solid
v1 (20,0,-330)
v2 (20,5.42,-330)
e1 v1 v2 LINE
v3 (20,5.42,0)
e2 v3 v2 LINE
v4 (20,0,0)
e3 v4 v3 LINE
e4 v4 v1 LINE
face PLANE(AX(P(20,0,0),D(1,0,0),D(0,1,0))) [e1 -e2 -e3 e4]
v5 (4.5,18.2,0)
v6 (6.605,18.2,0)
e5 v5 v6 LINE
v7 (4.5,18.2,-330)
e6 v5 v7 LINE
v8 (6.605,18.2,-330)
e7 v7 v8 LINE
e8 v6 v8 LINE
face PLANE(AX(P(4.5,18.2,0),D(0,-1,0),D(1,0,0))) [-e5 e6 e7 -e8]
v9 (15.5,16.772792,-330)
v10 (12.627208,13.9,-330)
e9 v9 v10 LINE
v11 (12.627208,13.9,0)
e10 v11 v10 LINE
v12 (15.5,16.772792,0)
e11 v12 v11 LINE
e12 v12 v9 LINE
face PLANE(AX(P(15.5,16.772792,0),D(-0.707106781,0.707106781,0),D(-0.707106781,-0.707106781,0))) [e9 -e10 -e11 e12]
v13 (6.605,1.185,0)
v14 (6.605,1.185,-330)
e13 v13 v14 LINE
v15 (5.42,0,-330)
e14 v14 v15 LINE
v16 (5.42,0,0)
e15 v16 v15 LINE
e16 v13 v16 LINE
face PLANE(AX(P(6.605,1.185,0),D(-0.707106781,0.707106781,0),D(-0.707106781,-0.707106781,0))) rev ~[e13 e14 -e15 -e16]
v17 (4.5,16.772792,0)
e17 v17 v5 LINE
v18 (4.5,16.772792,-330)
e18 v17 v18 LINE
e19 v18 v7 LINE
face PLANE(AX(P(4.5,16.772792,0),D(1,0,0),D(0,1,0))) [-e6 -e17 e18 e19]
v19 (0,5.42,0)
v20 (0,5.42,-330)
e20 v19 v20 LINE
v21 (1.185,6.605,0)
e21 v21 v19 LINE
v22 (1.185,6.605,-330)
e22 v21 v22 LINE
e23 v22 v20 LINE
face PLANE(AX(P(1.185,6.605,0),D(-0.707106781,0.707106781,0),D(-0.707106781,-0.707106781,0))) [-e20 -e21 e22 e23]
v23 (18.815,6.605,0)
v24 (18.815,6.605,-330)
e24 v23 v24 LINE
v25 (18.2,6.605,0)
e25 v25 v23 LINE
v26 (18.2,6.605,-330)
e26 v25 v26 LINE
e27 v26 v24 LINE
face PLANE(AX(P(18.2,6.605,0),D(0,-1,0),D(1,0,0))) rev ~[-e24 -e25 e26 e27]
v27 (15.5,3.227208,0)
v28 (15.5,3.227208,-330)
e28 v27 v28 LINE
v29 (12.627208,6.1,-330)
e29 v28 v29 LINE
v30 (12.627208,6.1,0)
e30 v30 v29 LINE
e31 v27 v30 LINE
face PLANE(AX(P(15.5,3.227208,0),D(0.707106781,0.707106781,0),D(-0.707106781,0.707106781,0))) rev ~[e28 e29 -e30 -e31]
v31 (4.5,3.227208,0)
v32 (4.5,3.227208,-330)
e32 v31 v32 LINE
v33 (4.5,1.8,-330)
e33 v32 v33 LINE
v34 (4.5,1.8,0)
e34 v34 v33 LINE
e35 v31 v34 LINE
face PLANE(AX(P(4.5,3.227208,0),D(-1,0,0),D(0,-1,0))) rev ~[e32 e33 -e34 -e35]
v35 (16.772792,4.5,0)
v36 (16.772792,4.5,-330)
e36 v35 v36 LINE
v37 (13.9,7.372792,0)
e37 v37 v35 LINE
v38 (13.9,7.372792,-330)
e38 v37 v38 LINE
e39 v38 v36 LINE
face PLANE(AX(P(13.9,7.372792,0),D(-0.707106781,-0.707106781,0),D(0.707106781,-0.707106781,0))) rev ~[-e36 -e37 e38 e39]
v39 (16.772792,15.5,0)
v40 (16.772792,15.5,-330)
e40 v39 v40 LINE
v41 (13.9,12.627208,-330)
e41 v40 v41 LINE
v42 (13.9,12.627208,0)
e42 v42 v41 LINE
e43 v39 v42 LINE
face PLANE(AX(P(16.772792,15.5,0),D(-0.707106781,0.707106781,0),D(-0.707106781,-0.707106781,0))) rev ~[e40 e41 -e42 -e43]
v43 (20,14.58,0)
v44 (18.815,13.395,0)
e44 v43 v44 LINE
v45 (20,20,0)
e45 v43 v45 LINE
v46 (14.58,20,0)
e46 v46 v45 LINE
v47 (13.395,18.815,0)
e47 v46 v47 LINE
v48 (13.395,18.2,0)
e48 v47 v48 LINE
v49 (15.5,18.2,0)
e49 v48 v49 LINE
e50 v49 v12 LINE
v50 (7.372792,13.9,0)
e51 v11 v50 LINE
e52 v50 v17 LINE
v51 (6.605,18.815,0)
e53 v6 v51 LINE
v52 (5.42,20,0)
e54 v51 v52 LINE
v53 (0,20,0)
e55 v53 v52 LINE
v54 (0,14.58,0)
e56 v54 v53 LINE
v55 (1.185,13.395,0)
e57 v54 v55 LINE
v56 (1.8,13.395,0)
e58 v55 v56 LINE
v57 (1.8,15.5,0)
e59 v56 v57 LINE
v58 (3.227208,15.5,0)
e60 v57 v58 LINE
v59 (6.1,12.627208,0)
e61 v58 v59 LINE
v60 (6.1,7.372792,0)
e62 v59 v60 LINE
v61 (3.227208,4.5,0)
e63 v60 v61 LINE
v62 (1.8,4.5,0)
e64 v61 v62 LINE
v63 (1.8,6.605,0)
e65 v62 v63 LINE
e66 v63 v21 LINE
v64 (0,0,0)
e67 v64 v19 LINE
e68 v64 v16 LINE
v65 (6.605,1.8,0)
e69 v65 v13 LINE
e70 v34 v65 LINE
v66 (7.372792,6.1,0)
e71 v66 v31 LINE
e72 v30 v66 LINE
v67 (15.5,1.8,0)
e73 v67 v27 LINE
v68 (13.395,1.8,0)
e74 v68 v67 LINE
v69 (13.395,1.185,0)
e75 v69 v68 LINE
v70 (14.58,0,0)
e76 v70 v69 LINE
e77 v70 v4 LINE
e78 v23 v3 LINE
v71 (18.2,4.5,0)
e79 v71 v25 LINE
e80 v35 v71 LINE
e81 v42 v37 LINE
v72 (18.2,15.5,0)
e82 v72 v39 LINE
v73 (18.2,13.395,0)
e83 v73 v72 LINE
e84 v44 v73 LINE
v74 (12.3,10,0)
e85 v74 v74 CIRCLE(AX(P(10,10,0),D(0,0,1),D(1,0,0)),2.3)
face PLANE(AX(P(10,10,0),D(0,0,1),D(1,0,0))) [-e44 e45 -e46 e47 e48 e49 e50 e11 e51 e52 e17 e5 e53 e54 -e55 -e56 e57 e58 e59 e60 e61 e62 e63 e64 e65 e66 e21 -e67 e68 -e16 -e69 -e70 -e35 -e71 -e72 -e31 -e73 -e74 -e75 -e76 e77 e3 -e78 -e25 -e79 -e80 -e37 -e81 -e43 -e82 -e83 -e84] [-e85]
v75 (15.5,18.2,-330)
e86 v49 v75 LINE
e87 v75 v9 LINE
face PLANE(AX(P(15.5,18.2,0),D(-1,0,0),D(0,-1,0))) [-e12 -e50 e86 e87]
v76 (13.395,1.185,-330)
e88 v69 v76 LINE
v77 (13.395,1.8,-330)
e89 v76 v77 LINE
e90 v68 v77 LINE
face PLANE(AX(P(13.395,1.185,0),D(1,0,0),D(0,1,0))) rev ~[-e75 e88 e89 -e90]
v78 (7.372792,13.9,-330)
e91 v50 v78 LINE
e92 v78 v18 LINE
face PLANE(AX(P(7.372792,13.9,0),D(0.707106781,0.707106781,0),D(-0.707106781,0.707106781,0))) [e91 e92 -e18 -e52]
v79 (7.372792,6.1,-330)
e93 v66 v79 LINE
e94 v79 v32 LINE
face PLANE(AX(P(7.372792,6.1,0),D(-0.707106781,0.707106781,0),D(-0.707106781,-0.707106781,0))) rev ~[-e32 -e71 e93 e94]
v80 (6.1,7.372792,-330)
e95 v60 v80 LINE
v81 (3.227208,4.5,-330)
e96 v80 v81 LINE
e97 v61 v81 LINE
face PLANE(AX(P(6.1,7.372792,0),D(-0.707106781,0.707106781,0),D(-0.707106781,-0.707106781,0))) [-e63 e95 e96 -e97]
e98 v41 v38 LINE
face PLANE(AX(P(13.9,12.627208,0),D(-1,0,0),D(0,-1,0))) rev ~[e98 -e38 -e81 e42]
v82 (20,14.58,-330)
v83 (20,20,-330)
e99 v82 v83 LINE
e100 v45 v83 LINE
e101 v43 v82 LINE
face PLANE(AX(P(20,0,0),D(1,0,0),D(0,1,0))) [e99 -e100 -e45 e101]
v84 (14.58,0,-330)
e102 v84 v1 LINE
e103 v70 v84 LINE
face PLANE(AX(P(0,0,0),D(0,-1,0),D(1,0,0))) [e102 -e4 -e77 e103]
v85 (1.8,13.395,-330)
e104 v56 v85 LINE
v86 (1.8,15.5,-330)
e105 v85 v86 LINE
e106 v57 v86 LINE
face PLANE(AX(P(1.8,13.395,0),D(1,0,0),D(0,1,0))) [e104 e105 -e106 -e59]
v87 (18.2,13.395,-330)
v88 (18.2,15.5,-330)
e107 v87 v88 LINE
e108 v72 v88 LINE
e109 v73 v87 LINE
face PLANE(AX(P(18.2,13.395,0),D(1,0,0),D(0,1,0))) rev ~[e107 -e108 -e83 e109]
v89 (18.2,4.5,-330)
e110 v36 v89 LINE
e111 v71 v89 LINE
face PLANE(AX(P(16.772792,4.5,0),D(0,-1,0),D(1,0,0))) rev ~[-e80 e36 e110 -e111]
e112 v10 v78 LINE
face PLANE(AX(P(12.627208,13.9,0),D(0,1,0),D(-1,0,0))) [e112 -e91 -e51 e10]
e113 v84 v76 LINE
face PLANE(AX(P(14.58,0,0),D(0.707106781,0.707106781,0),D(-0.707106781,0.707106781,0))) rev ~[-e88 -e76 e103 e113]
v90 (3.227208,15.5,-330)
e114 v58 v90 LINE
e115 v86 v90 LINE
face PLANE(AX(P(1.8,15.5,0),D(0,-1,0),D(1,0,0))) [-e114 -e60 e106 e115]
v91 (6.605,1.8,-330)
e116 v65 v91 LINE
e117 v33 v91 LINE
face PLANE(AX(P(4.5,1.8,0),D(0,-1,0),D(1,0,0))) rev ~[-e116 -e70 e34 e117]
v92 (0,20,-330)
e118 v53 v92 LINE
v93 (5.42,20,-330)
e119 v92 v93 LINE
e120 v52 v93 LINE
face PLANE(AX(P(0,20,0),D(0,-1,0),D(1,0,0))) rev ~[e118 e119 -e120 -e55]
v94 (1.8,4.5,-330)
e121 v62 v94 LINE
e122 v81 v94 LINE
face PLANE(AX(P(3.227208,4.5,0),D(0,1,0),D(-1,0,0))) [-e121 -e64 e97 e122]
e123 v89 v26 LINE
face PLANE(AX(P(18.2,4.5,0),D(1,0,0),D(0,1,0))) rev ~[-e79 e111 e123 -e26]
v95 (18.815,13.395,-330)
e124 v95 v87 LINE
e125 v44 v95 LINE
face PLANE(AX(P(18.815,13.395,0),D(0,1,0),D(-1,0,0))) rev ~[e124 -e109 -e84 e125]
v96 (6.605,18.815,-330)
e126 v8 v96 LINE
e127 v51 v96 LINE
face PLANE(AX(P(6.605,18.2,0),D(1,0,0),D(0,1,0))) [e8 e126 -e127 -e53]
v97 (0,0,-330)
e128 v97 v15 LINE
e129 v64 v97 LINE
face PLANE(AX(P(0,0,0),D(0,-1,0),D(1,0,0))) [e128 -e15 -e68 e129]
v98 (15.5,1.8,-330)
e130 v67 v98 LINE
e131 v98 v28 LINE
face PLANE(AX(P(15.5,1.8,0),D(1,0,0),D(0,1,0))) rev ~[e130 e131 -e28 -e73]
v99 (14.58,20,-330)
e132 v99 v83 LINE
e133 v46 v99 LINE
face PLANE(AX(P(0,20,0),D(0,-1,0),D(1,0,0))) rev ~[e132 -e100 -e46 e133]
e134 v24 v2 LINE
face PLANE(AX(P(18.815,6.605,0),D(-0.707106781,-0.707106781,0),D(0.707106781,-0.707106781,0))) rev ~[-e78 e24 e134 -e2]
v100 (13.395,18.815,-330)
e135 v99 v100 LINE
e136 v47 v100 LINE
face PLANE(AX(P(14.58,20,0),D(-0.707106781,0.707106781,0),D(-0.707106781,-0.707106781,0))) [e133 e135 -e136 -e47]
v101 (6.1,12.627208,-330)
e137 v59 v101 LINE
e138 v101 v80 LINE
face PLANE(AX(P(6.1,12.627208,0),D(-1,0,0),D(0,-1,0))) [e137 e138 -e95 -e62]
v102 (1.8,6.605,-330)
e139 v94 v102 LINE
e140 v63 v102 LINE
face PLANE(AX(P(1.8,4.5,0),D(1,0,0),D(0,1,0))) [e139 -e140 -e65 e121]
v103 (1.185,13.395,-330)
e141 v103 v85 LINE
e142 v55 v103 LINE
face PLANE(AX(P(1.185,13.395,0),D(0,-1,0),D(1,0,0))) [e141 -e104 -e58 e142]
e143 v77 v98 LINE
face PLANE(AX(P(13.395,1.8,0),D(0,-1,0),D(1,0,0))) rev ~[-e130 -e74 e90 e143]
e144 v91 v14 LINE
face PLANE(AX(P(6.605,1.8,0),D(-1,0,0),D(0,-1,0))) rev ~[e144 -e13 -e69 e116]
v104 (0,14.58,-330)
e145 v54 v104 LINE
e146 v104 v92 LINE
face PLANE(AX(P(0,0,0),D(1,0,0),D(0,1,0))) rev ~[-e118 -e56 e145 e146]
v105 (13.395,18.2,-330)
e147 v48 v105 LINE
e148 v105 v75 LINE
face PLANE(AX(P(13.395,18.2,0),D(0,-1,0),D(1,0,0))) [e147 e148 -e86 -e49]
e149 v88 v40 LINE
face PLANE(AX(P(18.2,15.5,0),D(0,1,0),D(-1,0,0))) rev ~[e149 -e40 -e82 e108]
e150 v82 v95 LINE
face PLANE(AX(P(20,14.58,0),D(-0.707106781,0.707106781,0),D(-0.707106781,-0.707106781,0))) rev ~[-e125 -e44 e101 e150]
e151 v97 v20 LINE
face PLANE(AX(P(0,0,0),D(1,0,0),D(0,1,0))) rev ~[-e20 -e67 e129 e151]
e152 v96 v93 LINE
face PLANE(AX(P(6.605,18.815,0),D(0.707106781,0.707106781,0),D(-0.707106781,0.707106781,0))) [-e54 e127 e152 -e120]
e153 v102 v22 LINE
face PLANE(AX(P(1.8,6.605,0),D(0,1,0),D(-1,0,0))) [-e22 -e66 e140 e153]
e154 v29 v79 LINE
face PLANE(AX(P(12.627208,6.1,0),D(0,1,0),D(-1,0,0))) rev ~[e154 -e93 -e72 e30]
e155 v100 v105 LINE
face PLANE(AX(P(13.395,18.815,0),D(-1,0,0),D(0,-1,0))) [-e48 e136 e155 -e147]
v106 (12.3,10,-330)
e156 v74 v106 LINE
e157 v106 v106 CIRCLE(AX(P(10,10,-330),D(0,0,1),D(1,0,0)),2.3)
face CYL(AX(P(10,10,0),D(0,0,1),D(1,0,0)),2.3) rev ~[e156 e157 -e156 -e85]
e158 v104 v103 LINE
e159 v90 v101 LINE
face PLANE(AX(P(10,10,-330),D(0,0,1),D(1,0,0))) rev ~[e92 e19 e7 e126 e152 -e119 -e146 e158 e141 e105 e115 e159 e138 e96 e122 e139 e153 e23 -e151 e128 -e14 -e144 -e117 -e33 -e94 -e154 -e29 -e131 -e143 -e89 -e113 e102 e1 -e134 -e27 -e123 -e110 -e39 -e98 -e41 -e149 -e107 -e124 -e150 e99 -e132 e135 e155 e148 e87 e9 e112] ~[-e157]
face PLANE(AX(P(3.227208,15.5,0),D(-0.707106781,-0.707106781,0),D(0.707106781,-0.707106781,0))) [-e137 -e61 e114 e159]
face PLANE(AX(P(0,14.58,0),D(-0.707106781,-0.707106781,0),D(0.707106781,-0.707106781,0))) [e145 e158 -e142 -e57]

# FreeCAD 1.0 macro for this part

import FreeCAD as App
import Part
import Sketcher


def add_polygon(sketch, points):
    """Adds a closed chain of lines whose ends are joined by coincident constraints."""
    first, n = sketch.GeometryCount, len(points)
    for a, b in zip(points, points[1:] + points[:1]):
        sketch.addGeometry(Part.LineSegment(App.Vector(*a, 0), App.Vector(*b, 0)), False)
    for i in range(n):
        sketch.addConstraint(Sketcher.Constraint("Coincident", first + i, 2, first + (i + 1) % n, 1))

doc = App.newDocument("Part")
body = doc.addObject("PartDesign::Body", "Body")

# Sketch on XY plane
sketch1 = doc.addObject("Sketcher::SketchObject", "Sketch")
body.addObject(sketch1)
sketch1.AttachmentSupport = (doc.XY_Plane, [""])
sketch1.MapMode = "FlatFace"
add_polygon(sketch1, [(0, 20), (0, 0), (20, 0), (20, 20)])  # lines 0-3
sketch1.addConstraint([
    Sketcher.Constraint("Vertical", 0),
    Sketcher.Constraint("Horizontal", 1),
    Sketcher.Constraint("Vertical", 2),
    Sketcher.Constraint("Horizontal", 3),
    Sketcher.Constraint("Coincident", 0, 2, -1, 1),
    Sketcher.Constraint("Equal", 3, 0),
    Sketcher.Constraint("DistanceX", 1, 1, 1, 2, 20.0),
])
pad1 = doc.addObject("PartDesign::Pad", "Pad")
body.addObject(pad1)
pad1.Profile = sketch1
pad1.Length = 330
pad1.Reversed = True

# Sketch on XY plane
sketch2 = doc.addObject("Sketcher::SketchObject", "Sketch001")
body.addObject(sketch2)
sketch2.AttachmentSupport = (doc.XY_Plane, [""])
sketch2.MapMode = "FlatFace"
sketch2.addGeometry(Part.Circle(App.Vector(10, 10, 0), App.Vector(0, 0, 1), 2.3), False)  # 0
add_polygon(sketch2, [(14.58, 20), (5.42, 20), (6.605, 18.815), (6.605, 18.2), (4.5, 18.2), (4.5, 16.772792), (7.372792, 13.9), (12.627208, 13.9), (15.5, 16.772792), (15.5, 18.2), (13.395, 18.2), (13.395, 18.815)])  # lines 1-12
add_polygon(sketch2, [(6.605, 1.185), (5.42, 0), (14.58, 0), (13.395, 1.185), (13.395, 1.8), (15.5, 1.8), (15.5, 3.227208), (12.627208, 6.1), (7.372792, 6.1), (4.5, 3.227208), (4.5, 1.8), (6.605, 1.8)])  # lines 13-24
add_polygon(sketch2, [(1.185, 6.605), (1.8, 6.605), (1.8, 4.5), (3.227208, 4.5), (6.1, 7.372792), (6.1, 12.627208), (3.227208, 15.5), (1.8, 15.5), (1.8, 13.395), (1.185, 13.395), (0, 14.58), (0, 5.42)])  # lines 25-36
add_polygon(sketch2, [(18.815, 6.605), (20, 5.42), (20, 14.58), (18.815, 13.395), (18.2, 13.395), (18.2, 15.5), (16.772792, 15.5), (13.9, 12.627208), (13.9, 7.372792), (16.772792, 4.5), (18.2, 4.5), (18.2, 6.605)])  # lines 37-48
sketch2.addConstraint([
    Sketcher.Constraint("Horizontal", 1),
    Sketcher.Constraint("Vertical", 3),
    Sketcher.Constraint("Horizontal", 4),
    Sketcher.Constraint("Vertical", 5),
    Sketcher.Constraint("Horizontal", 7),
    Sketcher.Constraint("Vertical", 9),
    Sketcher.Constraint("Horizontal", 10),
    Sketcher.Constraint("Vertical", 11),
    Sketcher.Constraint("Horizontal", 14),
    Sketcher.Constraint("Vertical", 16),
    Sketcher.Constraint("Horizontal", 17),
    Sketcher.Constraint("Vertical", 18),
    Sketcher.Constraint("Horizontal", 20),
    Sketcher.Constraint("Vertical", 22),
    Sketcher.Constraint("Horizontal", 23),
    Sketcher.Constraint("Vertical", 24),
    Sketcher.Constraint("Horizontal", 25),
    Sketcher.Constraint("Vertical", 26),
    Sketcher.Constraint("Horizontal", 27),
    Sketcher.Constraint("Vertical", 29),
    Sketcher.Constraint("Horizontal", 31),
    Sketcher.Constraint("Vertical", 32),
    Sketcher.Constraint("Horizontal", 33),
    Sketcher.Constraint("Vertical", 35),
    Sketcher.Constraint("Vertical", 38),
    Sketcher.Constraint("Horizontal", 40),
    Sketcher.Constraint("Vertical", 41),
    Sketcher.Constraint("Horizontal", 42),
    Sketcher.Constraint("Vertical", 44),
    Sketcher.Constraint("Horizontal", 46),
    Sketcher.Constraint("Vertical", 47),
    Sketcher.Constraint("Horizontal", 48),
    Sketcher.Constraint("PointOnObject", 13, 2, -1),
    Sketcher.Constraint("PointOnObject", 34, 2, -2),
    Sketcher.Constraint("Parallel", 2, 6),
    Sketcher.Constraint("Perpendicular", 6, 8),
    Sketcher.Constraint("Parallel", 8, 12),
    Sketcher.Constraint("Parallel", 12, 13),
    Sketcher.Constraint("Perpendicular", 13, 15),
    Sketcher.Constraint("Parallel", 15, 19),
    Sketcher.Constraint("Perpendicular", 19, 21),
    Sketcher.Constraint("Parallel", 21, 28),
    Sketcher.Constraint("Perpendicular", 28, 30),
    Sketcher.Constraint("Parallel", 30, 34),
    Sketcher.Constraint("Perpendicular", 34, 36),
    Sketcher.Constraint("Perpendicular", 36, 37),
    Sketcher.Constraint("Perpendicular", 37, 39),
    Sketcher.Constraint("Parallel", 39, 43),
    Sketcher.Constraint("Perpendicular", 43, 45),
    Sketcher.Constraint("Horizontal", 5, 2, 8, 2),
    Sketcher.Constraint("Horizontal", 4, 2, 9, 2),
    Sketcher.Constraint("Horizontal", 2, 2, 11, 2),
    Sketcher.Constraint("Horizontal", 18, 2, 21, 2),
    Sketcher.Constraint("Horizontal", 17, 2, 22, 2),
    Sketcher.Constraint("Horizontal", 15, 2, 24, 2),
    Sketcher.Constraint("Horizontal", 35, 2, 37, 2),
    Sketcher.Constraint("Horizontal", 34, 2, 38, 2),
    Sketcher.Constraint("Horizontal", 33, 2, 39, 2),
    Sketcher.Constraint("Horizontal", 31, 2, 41, 2),
    Sketcher.Constraint("Horizontal", 29, 2, 43, 2),
    Sketcher.Constraint("Horizontal", 28, 2, 44, 2),
    Sketcher.Constraint("Horizontal", 27, 2, 45, 2),
    Sketcher.Constraint("Horizontal", 36, 2, 47, 2),
    Sketcher.Constraint("Vertical", 1, 2, 13, 2),
    Sketcher.Constraint("Vertical", 12, 2, 14, 2),
    Sketcher.Constraint("Vertical", 11, 2, 15, 2),
    Sketcher.Constraint("Vertical", 9, 2, 17, 2),
    Sketcher.Constraint("Vertical", 7, 2, 19, 2),
    Sketcher.Constraint("Vertical", 6, 2, 20, 2),
    Sketcher.Constraint("Vertical", 5, 2, 21, 2),
    Sketcher.Constraint("Vertical", 27, 2, 30, 2),
    Sketcher.Constraint("Vertical", 26, 2, 31, 2),
    Sketcher.Constraint("Vertical", 33, 2, 36, 2),
    Sketcher.Constraint("Vertical", 41, 2, 46, 2),
    Sketcher.Constraint("Equal", 4, 10),
    Sketcher.Constraint("Equal", 33, 40),
    Sketcher.Constraint("Equal", 31, 42),
    Sketcher.Constraint("Equal", 48, 3),
    Sketcher.Constraint("Equal", 46, 5),
    Sketcher.Constraint("Equal", 11, 16),
    Sketcher.Constraint("Equal", 9, 18),
    Sketcher.Constraint("Equal", 23, 26),
    Sketcher.Constraint("Equal", 20, 29),
    Sketcher.Constraint("Equal", 26, 32),
    Sketcher.Constraint("Equal", 14, 35),
    Sketcher.Constraint("Equal", 21, 28),
    Sketcher.Constraint("Diameter", 0, 4.6),
    Sketcher.Constraint("DistanceX", -1, 1, 0, 3, 10.0),
    Sketcher.Constraint("DistanceY", -1, 1, 0, 3, 10.0),
    Sketcher.Constraint("DistanceY", -1, 1, 1, 2, 20.0),
    Sketcher.Constraint("DistanceX", -1, 1, 37, 2, 20.0),
    Sketcher.Constraint("DistanceX", 1, 2, 1, 1, 9.16),
    Sketcher.Constraint("DistanceY", -1, 1, 3, 2, 18.2),
    Sketcher.Constraint("DistanceX", -1, 1, 4, 2, 4.5),
    Sketcher.Constraint("DistanceY", -1, 1, 6, 2, 13.9),
    Sketcher.Constraint("DistanceX", -1, 1, 8, 2, 15.5),
    Sketcher.Constraint("DistanceY", -1, 1, 26, 2, 4.5),
    Sketcher.Constraint("DistanceX", 4, 2, 4, 1, 2.105),
    Sketcher.Constraint("Distance", 6, 4.062742),
])
pocket1 = doc.addObject("PartDesign::Pocket", "Pocket")
body.addObject(pocket1)
pocket1.Profile = sketch2
pocket1.Type = "ThroughAll"

doc.recompute()
